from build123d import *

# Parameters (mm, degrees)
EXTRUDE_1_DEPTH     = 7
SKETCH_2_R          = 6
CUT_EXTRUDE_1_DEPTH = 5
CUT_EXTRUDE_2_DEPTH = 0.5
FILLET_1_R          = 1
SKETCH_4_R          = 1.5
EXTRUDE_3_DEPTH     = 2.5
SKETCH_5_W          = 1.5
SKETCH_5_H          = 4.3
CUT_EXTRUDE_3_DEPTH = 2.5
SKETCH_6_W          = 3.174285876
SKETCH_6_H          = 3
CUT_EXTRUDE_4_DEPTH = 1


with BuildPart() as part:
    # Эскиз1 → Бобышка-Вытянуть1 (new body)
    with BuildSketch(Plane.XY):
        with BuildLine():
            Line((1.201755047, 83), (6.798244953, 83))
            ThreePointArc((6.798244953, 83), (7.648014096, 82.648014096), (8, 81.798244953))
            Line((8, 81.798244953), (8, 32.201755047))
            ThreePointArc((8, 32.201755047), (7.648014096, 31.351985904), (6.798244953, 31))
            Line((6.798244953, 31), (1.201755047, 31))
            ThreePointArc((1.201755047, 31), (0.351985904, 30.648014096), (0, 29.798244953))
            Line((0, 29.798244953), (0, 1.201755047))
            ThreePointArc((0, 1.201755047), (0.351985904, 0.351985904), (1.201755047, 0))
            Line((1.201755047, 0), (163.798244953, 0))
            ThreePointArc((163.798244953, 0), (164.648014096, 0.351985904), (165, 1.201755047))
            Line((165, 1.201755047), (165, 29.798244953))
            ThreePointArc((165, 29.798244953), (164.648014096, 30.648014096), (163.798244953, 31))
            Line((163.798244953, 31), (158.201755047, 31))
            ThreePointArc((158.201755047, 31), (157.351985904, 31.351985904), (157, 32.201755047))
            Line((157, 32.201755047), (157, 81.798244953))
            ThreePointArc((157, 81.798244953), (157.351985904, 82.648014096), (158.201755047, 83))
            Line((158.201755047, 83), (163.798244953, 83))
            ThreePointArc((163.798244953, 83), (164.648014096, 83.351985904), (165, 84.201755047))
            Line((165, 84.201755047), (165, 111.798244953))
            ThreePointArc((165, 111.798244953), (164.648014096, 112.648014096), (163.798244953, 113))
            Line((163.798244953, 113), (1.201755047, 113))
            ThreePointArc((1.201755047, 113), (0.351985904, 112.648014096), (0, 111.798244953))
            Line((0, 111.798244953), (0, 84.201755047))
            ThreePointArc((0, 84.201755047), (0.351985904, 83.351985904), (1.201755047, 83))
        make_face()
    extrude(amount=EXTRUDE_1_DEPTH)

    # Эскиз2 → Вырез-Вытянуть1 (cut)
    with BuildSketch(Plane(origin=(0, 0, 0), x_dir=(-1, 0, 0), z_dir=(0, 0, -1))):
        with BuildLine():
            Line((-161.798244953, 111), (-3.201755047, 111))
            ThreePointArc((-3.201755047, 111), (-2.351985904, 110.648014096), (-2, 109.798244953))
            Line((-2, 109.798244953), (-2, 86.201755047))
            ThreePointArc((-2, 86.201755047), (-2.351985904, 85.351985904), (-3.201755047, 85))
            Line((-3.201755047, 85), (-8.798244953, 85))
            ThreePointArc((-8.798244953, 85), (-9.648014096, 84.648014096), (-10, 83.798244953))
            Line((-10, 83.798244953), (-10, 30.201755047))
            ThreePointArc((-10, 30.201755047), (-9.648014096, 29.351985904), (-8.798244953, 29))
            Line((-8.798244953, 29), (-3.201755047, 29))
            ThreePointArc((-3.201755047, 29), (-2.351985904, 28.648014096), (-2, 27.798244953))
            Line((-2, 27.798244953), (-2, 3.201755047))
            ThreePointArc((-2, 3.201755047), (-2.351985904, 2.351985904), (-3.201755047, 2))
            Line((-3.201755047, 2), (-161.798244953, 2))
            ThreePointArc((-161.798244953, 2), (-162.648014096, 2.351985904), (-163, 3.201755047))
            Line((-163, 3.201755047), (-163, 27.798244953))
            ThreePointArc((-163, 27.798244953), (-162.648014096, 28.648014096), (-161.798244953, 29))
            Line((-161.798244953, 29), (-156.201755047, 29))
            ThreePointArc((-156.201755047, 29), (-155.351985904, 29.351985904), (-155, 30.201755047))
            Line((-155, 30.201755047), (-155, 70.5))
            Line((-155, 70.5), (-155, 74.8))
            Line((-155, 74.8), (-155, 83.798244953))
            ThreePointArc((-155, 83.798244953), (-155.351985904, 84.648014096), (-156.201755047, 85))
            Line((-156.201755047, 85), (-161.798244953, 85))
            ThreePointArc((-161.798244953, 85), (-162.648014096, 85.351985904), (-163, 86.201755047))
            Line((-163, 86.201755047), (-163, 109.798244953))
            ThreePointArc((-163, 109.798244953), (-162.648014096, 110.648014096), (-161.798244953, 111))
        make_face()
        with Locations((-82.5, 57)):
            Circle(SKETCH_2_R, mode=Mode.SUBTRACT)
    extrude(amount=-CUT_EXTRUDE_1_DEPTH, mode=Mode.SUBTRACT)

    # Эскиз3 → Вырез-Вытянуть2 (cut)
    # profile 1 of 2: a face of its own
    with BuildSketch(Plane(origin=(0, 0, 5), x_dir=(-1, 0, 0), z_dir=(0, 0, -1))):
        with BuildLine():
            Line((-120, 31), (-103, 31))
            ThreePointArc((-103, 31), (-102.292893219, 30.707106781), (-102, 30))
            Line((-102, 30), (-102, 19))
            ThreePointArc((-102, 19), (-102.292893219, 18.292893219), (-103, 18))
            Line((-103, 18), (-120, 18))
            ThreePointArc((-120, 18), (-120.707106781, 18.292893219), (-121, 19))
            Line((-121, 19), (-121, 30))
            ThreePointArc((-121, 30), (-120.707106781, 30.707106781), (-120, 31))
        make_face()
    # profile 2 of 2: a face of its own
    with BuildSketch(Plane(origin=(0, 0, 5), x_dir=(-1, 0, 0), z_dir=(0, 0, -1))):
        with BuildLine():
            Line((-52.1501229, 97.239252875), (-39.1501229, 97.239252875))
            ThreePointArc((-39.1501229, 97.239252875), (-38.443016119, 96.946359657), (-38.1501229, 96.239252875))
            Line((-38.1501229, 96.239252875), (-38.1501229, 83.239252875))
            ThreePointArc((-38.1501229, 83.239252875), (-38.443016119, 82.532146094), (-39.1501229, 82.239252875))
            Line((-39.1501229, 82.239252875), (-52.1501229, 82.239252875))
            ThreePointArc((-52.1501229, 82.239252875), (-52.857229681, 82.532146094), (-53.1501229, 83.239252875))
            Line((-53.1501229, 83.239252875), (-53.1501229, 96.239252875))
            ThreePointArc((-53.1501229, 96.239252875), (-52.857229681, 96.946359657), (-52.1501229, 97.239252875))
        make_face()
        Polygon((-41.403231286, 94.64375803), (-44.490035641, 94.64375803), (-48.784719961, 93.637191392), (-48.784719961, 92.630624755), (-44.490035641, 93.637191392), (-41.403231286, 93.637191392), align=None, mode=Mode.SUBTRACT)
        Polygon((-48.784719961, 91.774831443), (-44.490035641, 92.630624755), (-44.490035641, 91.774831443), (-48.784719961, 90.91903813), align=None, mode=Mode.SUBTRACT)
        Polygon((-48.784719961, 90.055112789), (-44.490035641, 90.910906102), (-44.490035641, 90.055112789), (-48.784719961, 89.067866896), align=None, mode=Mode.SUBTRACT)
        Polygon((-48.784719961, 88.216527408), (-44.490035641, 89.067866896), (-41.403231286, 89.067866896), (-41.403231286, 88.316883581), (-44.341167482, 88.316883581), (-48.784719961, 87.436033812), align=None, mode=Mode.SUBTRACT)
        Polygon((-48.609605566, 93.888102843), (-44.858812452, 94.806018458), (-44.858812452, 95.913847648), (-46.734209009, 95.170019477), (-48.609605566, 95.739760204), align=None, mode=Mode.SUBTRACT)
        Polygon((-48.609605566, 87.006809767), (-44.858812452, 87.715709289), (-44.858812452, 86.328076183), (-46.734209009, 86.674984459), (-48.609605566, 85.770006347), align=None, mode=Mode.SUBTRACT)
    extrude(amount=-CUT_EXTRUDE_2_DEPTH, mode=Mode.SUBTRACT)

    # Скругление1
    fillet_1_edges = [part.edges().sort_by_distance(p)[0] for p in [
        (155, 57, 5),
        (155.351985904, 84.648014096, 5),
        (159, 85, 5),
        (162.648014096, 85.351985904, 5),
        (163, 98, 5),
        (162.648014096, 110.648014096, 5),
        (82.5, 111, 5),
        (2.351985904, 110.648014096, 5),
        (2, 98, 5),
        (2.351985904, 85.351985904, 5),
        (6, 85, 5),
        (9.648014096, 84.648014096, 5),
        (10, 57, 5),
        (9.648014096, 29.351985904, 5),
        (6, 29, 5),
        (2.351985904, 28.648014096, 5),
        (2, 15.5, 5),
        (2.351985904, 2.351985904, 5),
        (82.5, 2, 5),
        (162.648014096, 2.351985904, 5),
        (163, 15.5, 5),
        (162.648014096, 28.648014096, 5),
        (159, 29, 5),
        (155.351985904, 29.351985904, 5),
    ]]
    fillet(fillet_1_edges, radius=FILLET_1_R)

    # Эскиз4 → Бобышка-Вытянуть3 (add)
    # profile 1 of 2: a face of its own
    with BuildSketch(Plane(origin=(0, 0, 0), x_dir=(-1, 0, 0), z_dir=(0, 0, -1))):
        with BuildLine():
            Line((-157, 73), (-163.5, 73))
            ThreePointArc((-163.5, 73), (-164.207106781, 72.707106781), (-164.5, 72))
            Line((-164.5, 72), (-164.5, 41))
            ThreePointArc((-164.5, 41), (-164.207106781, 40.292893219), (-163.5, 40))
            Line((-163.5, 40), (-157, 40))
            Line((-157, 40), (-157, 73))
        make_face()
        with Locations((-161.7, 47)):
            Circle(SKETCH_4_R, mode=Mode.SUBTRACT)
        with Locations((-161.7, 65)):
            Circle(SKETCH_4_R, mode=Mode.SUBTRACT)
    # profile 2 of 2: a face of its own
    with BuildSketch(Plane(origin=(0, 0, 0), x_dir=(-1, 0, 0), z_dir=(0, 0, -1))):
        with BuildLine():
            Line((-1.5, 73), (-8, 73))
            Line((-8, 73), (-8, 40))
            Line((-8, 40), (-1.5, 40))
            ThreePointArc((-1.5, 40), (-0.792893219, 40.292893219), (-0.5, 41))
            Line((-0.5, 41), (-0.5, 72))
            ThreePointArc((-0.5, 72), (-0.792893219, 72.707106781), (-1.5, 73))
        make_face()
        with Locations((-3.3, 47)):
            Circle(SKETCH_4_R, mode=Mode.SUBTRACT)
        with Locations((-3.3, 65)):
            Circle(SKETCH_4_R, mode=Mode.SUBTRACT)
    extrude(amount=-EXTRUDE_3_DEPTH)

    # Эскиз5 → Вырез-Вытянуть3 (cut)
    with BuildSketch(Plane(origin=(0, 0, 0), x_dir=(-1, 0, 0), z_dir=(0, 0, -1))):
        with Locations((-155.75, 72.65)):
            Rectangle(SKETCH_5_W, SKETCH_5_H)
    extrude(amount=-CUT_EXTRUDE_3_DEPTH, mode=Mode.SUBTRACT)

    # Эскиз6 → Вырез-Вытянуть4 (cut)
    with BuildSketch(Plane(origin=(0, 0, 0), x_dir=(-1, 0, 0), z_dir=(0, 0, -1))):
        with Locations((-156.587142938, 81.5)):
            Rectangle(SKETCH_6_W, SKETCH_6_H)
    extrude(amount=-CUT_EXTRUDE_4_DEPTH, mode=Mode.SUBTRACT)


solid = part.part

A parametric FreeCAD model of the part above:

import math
import FreeCAD as App
import Part
import Sketcher

V = App.Vector


def edges_at(feature, points):
    """Names of the edges that pass closest to the given points."""
    edges = feature.Shape.Edges
    near = lambda p: min(range(len(edges)), key=lambda i: edges[i].distToShape(Part.Vertex(*p))[0])
    return sorted({f"Edge{near(p) + 1}" for p in points})


def add_polygon(sketch, points):
    """Adds a closed chain of lines whose ends are joined by coincident constraints."""
    first, n = sketch.GeometryCount, len(points)
    for a, b in zip(points, points[1:] + points[:1]):
        sketch.addGeometry(Part.LineSegment(App.Vector(*a, 0), App.Vector(*b, 0)), False)
    for i in range(n):
        sketch.addConstraint(Sketcher.Constraint("Coincident", first + i, 2, first + (i + 1) % n, 1))

doc = App.newDocument("Part")
body = doc.addObject("PartDesign::Body", "Body")

sketch1 = body.newObject("Sketcher::SketchObject", "Sketch")
sketch1.AttachmentSupport = (doc.getObject("XY_Plane"), [""])
sketch1.MapMode = "FlatFace"
sketch1.addGeometry([
    Part.LineSegment(V(1.2, 83, 0), V(6.8, 83, 0)),
    Part.ArcOfCircle(Part.Circle(V(6.8, 81.8, 0), V(0, 0, 1), 1.2), math.radians(0), math.radians(90)),
    Part.LineSegment(V(8, 81.8, 0), V(8, 32.2, 0)),
    Part.ArcOfCircle(Part.Circle(V(6.8, 32.2, 0), V(0, 0, 1), 1.2), math.radians(-90), math.radians(0)),
    Part.LineSegment(V(6.8, 31, 0), V(1.2, 31, 0)),
    Part.ArcOfCircle(Part.Circle(V(1.2, 29.8, 0), V(0, 0, 1), 1.2), math.radians(90), math.radians(180)),
    Part.LineSegment(V(0, 29.8, 0), V(0, 1.2, 0)),
    Part.ArcOfCircle(Part.Circle(V(1.2, 1.2, 0), V(0, 0, 1), 1.2), math.radians(180), math.radians(270)),
    Part.LineSegment(V(1.2, 0, 0), V(163.8, 0, 0)),
    Part.ArcOfCircle(Part.Circle(V(163.8, 1.2, 0), V(0, 0, 1), 1.2), math.radians(-90), math.radians(0)),
    Part.LineSegment(V(165, 1.2, 0), V(165, 29.8, 0)),
    Part.ArcOfCircle(Part.Circle(V(163.8, 29.8, 0), V(0, 0, 1), 1.2), math.radians(0), math.radians(90)),
    Part.LineSegment(V(163.8, 31, 0), V(158.2, 31, 0)),
    Part.ArcOfCircle(Part.Circle(V(158.2, 32.2, 0), V(0, 0, 1), 1.2), math.radians(180), math.radians(270)),
    Part.LineSegment(V(157, 32.2, 0), V(157, 81.8, 0)),
    Part.ArcOfCircle(Part.Circle(V(158.2, 81.8, 0), V(0, 0, 1), 1.2), math.radians(90), math.radians(180)),
    Part.LineSegment(V(158.2, 83, 0), V(163.8, 83, 0)),
    Part.ArcOfCircle(Part.Circle(V(163.8, 84.2, 0), V(0, 0, 1), 1.2), math.radians(-90), math.radians(0)),
    Part.LineSegment(V(165, 84.2, 0), V(165, 111.8, 0)),
    Part.ArcOfCircle(Part.Circle(V(163.8, 111.8, 0), V(0, 0, 1), 1.2), math.radians(0), math.radians(90)),
    Part.LineSegment(V(163.8, 113, 0), V(1.2, 113, 0)),
    Part.ArcOfCircle(Part.Circle(V(1.2, 111.8, 0), V(0, 0, 1), 1.2), math.radians(90), math.radians(180)),
    Part.LineSegment(V(0, 111.8, 0), V(0, 84.2, 0)),
    Part.ArcOfCircle(Part.Circle(V(1.2, 84.2, 0), V(0, 0, 1), 1.2), math.radians(180), math.radians(270)),
], False)
sketch1.addConstraint([
    Sketcher.Constraint("Tangent", 0, 2, 1, 2),
    Sketcher.Constraint("Tangent", 1, 1, 2, 1),
    Sketcher.Constraint("Tangent", 2, 2, 3, 2),
    Sketcher.Constraint("Tangent", 3, 1, 4, 1),
    Sketcher.Constraint("Tangent", 4, 2, 5, 1),
    Sketcher.Constraint("Tangent", 5, 2, 6, 1),
    Sketcher.Constraint("Tangent", 6, 2, 7, 1),
    Sketcher.Constraint("Tangent", 7, 2, 8, 1),
    Sketcher.Constraint("Tangent", 8, 2, 9, 1),
    Sketcher.Constraint("Tangent", 9, 2, 10, 1),
    Sketcher.Constraint("Tangent", 10, 2, 11, 1),
    Sketcher.Constraint("Tangent", 11, 2, 12, 1),
    Sketcher.Constraint("Tangent", 12, 2, 13, 2),
    Sketcher.Constraint("Tangent", 13, 1, 14, 1),
    Sketcher.Constraint("Tangent", 14, 2, 15, 2),
    Sketcher.Constraint("Tangent", 15, 1, 16, 1),
    Sketcher.Constraint("Tangent", 16, 2, 17, 1),
    Sketcher.Constraint("Tangent", 17, 2, 18, 1),
    Sketcher.Constraint("Tangent", 18, 2, 19, 1),
    Sketcher.Constraint("Tangent", 19, 2, 20, 1),
    Sketcher.Constraint("Tangent", 20, 2, 21, 1),
    Sketcher.Constraint("Tangent", 21, 2, 22, 1),
    Sketcher.Constraint("Tangent", 22, 2, 23, 1),
    Sketcher.Constraint("Tangent", 23, 2, 0, 1),
    Sketcher.Constraint("Horizontal", 0),
    Sketcher.Constraint("Vertical", 2),
    Sketcher.Constraint("Horizontal", 4),
    Sketcher.Constraint("Vertical", 6),
    Sketcher.Constraint("Horizontal", 8),
    Sketcher.Constraint("Vertical", 10),
    Sketcher.Constraint("Horizontal", 12),
    Sketcher.Constraint("Vertical", 14),
    Sketcher.Constraint("Horizontal", 16),
    Sketcher.Constraint("Vertical", 18),
    Sketcher.Constraint("Horizontal", 20),
    Sketcher.Constraint("Vertical", 22),
    Sketcher.Constraint("Equal", 1, 3),
    Sketcher.Constraint("Equal", 3, 5),
    Sketcher.Constraint("Equal", 5, 7),
    Sketcher.Constraint("Equal", 7, 9),
    Sketcher.Constraint("Equal", 9, 11),
    Sketcher.Constraint("Equal", 11, 13),
    Sketcher.Constraint("Equal", 13, 15),
    Sketcher.Constraint("Equal", 15, 17),
    Sketcher.Constraint("Equal", 17, 19),
    Sketcher.Constraint("Equal", 19, 21),
    Sketcher.Constraint("Equal", 21, 23),
    Sketcher.Constraint("PointOnObject", 5, 2, -2),
    Sketcher.Constraint("PointOnObject", 7, 2, -1),
    Sketcher.Constraint("PointOnObject", 21, 2, -2),
    Sketcher.Constraint("Horizontal", 5, 3, 11, 3),
    Sketcher.Constraint("Horizontal", 1, 3, 15, 3),
    Sketcher.Constraint("Vertical", 11, 3, 17, 3),
    Sketcher.Constraint("Equal", 4, 12),
    Sketcher.Constraint("DistanceY", -1, 1, 0, 2, 83.0),
    Sketcher.Constraint("DistanceX", -1, 1, 1, 1, 8.0),
    Sketcher.Constraint("DistanceY", -1, 1, 3, 1, 31.0),
    Sketcher.Constraint("DistanceX", -1, 1, 9, 2, 165.0),
    Sketcher.Constraint("DistanceY", -1, 1, 19, 2, 113.0),
    Sketcher.Constraint("Radius", 1, 1.201755),
])
pad1 = body.newObject("PartDesign::Pad", "Pad")
pad1.Profile = sketch1
pad1.Length = 7

sketch2 = body.newObject("Sketcher::SketchObject", "Sketch001")
sketch2.AttachmentSupport = (doc.getObject("XY_Plane"), [""])
sketch2.MapMode = "FlatFace"
sketch2.addGeometry([
    Part.LineSegment(V(3.2, 111, 0), V(161.8, 111, 0)),
    Part.ArcOfCircle(Part.Circle(V(161.8, 109.8, 0), V(0, 0, 1), 1.2), math.radians(0), math.radians(90)),
    Part.LineSegment(V(163, 109.8, 0), V(163, 86.2, 0)),
    Part.ArcOfCircle(Part.Circle(V(161.8, 86.2, 0), V(0, 0, 1), 1.2), math.radians(-90), math.radians(0)),
    Part.LineSegment(V(161.8, 85, 0), V(156.2, 85, 0)),
    Part.ArcOfCircle(Part.Circle(V(156.2, 83.8, 0), V(0, 0, 1), 1.2), math.radians(90), math.radians(180)),
    Part.LineSegment(V(155, 83.8, 0), V(155, 30.2, 0)),
    Part.ArcOfCircle(Part.Circle(V(156.2, 30.2, 0), V(0, 0, 1), 1.2), math.radians(180), math.radians(270)),
    Part.LineSegment(V(156.2, 29, 0), V(161.8, 29, 0)),
    Part.ArcOfCircle(Part.Circle(V(161.8, 27.8, 0), V(0, 0, 1), 1.2), math.radians(0), math.radians(90)),
    Part.LineSegment(V(163, 27.8, 0), V(163, 3.2, 0)),
    Part.ArcOfCircle(Part.Circle(V(161.8, 3.2, 0), V(0, 0, 1), 1.2), math.radians(-90), math.radians(0)),
    Part.LineSegment(V(161.8, 2, 0), V(3.2, 2, 0)),
    Part.ArcOfCircle(Part.Circle(V(3.2, 3.2, 0), V(0, 0, 1), 1.2), math.radians(180), math.radians(270)),
    Part.LineSegment(V(2, 3.2, 0), V(2, 27.8, 0)),
    Part.ArcOfCircle(Part.Circle(V(3.2, 27.8, 0), V(0, 0, 1), 1.2), math.radians(90), math.radians(180)),
    Part.LineSegment(V(3.2, 29, 0), V(8.8, 29, 0)),
    Part.ArcOfCircle(Part.Circle(V(8.8, 30.2, 0), V(0, 0, 1), 1.2), math.radians(-90), math.radians(0)),
    Part.LineSegment(V(10, 30.2, 0), V(10, 83.8, 0)),
    Part.ArcOfCircle(Part.Circle(V(8.8, 83.8, 0), V(0, 0, 1), 1.2), math.radians(0), math.radians(90)),
    Part.LineSegment(V(8.8, 85, 0), V(3.2, 85, 0)),
    Part.ArcOfCircle(Part.Circle(V(3.2, 86.2, 0), V(0, 0, 1), 1.2), math.radians(180), math.radians(270)),
    Part.LineSegment(V(2, 86.2, 0), V(2, 109.8, 0)),
    Part.ArcOfCircle(Part.Circle(V(3.2, 109.8, 0), V(0, 0, 1), 1.2), math.radians(90), math.radians(180)),
    Part.Circle(V(82.5, 57, 0), V(0, 0, 1), 6),
], False)
sketch2.addConstraint([
    Sketcher.Constraint("Tangent", 0, 2, 1, 2),
    Sketcher.Constraint("Tangent", 1, 1, 2, 1),
    Sketcher.Constraint("Tangent", 2, 2, 3, 2),
    Sketcher.Constraint("Tangent", 3, 1, 4, 1),
    Sketcher.Constraint("Tangent", 4, 2, 5, 1),
    Sketcher.Constraint("Tangent", 5, 2, 6, 1),
    Sketcher.Constraint("Tangent", 6, 2, 7, 1),
    Sketcher.Constraint("Tangent", 7, 2, 8, 1),
    Sketcher.Constraint("Tangent", 8, 2, 9, 2),
    Sketcher.Constraint("Tangent", 9, 1, 10, 1),
    Sketcher.Constraint("Tangent", 10, 2, 11, 2),
    Sketcher.Constraint("Tangent", 11, 1, 12, 1),
    Sketcher.Constraint("Tangent", 12, 2, 13, 2),
    Sketcher.Constraint("Tangent", 13, 1, 14, 1),
    Sketcher.Constraint("Tangent", 14, 2, 15, 2),
    Sketcher.Constraint("Tangent", 15, 1, 16, 1),
    Sketcher.Constraint("Tangent", 16, 2, 17, 1),
    Sketcher.Constraint("Tangent", 17, 2, 18, 1),
    Sketcher.Constraint("Tangent", 18, 2, 19, 1),
    Sketcher.Constraint("Tangent", 19, 2, 20, 1),
    Sketcher.Constraint("Tangent", 20, 2, 21, 2),
    Sketcher.Constraint("Tangent", 21, 1, 22, 1),
    Sketcher.Constraint("Tangent", 22, 2, 23, 2),
    Sketcher.Constraint("Tangent", 23, 1, 0, 1),
    Sketcher.Constraint("Horizontal", 0),
    Sketcher.Constraint("Vertical", 2),
    Sketcher.Constraint("Horizontal", 4),
    Sketcher.Constraint("Vertical", 6),
    Sketcher.Constraint("Horizontal", 8),
    Sketcher.Constraint("Vertical", 10),
    Sketcher.Constraint("Horizontal", 12),
    Sketcher.Constraint("Vertical", 14),
    Sketcher.Constraint("Horizontal", 16),
    Sketcher.Constraint("Vertical", 18),
    Sketcher.Constraint("Horizontal", 20),
    Sketcher.Constraint("Vertical", 22),
    Sketcher.Constraint("Equal", 1, 3),
    Sketcher.Constraint("Equal", 3, 5),
    Sketcher.Constraint("Equal", 5, 7),
    Sketcher.Constraint("Equal", 7, 9),
    Sketcher.Constraint("Equal", 9, 11),
    Sketcher.Constraint("Equal", 11, 13),
    Sketcher.Constraint("Equal", 13, 15),
    Sketcher.Constraint("Equal", 15, 17),
    Sketcher.Constraint("Equal", 17, 19),
    Sketcher.Constraint("Equal", 19, 21),
    Sketcher.Constraint("Equal", 21, 23),
    Sketcher.Constraint("Horizontal", 9, 3, 15, 3),
    Sketcher.Constraint("Horizontal", 5, 3, 19, 3),
    Sketcher.Constraint("Vertical", 3, 3, 9, 3),
    Sketcher.Constraint("Vertical", 15, 3, 21, 3),
    Sketcher.Constraint("Equal", 8, 16),
    Sketcher.Constraint("Diameter", 24, 12.0),
    Sketcher.Constraint("DistanceY", -1, 1, 24, 3, 57.0),
    Sketcher.Constraint("DistanceY", -1, 1, 0, 2, 111.0),
    Sketcher.Constraint("DistanceX", -1, 1, 1, 1, 163.0),
    Sketcher.Constraint("DistanceY", -1, 1, 3, 1, 85.0),
    Sketcher.Constraint("DistanceX", -1, 1, 5, 2, 155.0),
    Sketcher.Constraint("DistanceY", -1, 1, 7, 2, 29.0),
    Sketcher.Constraint("DistanceY", -1, 1, 11, 1, 2.0),
    Sketcher.Constraint("DistanceX", -1, 1, 13, 1, 2.0),
    Sketcher.Constraint("DistanceX", -1, 1, 24, 3, 82.5),
    Sketcher.Constraint("Radius", 1, 1.201755),
])
pocket1 = body.newObject("PartDesign::Pocket", "Pocket")
pocket1.Profile = sketch2
pocket1.Length = 5
pocket1.Reversed = True

sketch3 = body.newObject("Sketcher::SketchObject", "Sketch002")
sketch3.AttachmentSupport = (doc.getObject("XY_Plane"), [""])
sketch3.MapMode = "FlatFace"
sketch3.AttachmentOffset = App.Placement(V(0, 0, 5), App.Rotation())
sketch3.addGeometry(Part.LineSegment(V(103, 31, 0), V(120, 31, 0)), False)
sketch3.addGeometry(Part.ArcOfCircle(Part.Circle(V(120, 30, 0), V(0, 0, 1), 1), math.radians(0), math.radians(90)), False)
sketch3.addGeometry(Part.LineSegment(V(121, 30, 0), V(121, 19, 0)), False)
sketch3.addGeometry(Part.ArcOfCircle(Part.Circle(V(120, 19, 0), V(0, 0, 1), 1), math.radians(-90), math.radians(0)), False)
sketch3.addGeometry(Part.LineSegment(V(120, 18, 0), V(103, 18, 0)), False)
sketch3.addGeometry(Part.ArcOfCircle(Part.Circle(V(103, 19, 0), V(0, 0, 1), 1), math.radians(-180), math.radians(-90)), False)
sketch3.addGeometry(Part.LineSegment(V(102, 19, 0), V(102, 30, 0)), False)
sketch3.addGeometry(Part.ArcOfCircle(Part.Circle(V(103, 30, 0), V(0, 0, 1), 1), math.radians(90), math.radians(180)), False)
sketch3.addGeometry(Part.LineSegment(V(39.150123, 97.239253, 0), V(52.150123, 97.239253, 0)), False)
sketch3.addGeometry(Part.ArcOfCircle(Part.Circle(V(52.150123, 96.239253, 0), V(0, 0, 1), 1), math.radians(0), math.radians(90)), False)
sketch3.addGeometry(Part.LineSegment(V(53.150123, 96.239253, 0), V(53.150123, 83.239253, 0)), False)
sketch3.addGeometry(Part.ArcOfCircle(Part.Circle(V(52.150123, 83.239253, 0), V(0, 0, 1), 1), math.radians(-90), math.radians(0)), False)
sketch3.addGeometry(Part.LineSegment(V(52.150123, 82.239253, 0), V(39.150123, 82.239253, 0)), False)
sketch3.addGeometry(Part.ArcOfCircle(Part.Circle(V(39.150123, 83.239253, 0), V(0, 0, 1), 1), math.radians(-180), math.radians(-90)), False)
sketch3.addGeometry(Part.LineSegment(V(38.150123, 83.239253, 0), V(38.150123, 96.239253, 0)), False)
sketch3.addGeometry(Part.ArcOfCircle(Part.Circle(V(39.150123, 96.239253, 0), V(0, 0, 1), 1), math.radians(90), math.radians(180)), False)
add_polygon(sketch3, [(48.78472, 88.216527), (44.490036, 89.067867), (41.403231, 89.067867), (41.403231, 88.316884), (44.341167, 88.316884), (48.78472, 87.436034)])
add_polygon(sketch3, [(48.609606, 87.00681), (44.858812, 87.715709), (44.858812, 86.328076), (46.734209, 86.674984), (48.609606, 85.770006)])
add_polygon(sketch3, [(48.78472, 90.055113), (44.490036, 90.910906), (44.490036, 90.055113), (48.78472, 89.067867)])
add_polygon(sketch3, [(41.403231, 94.643758), (41.403231, 93.637191), (44.490036, 93.637191), (48.78472, 92.630625), (48.78472, 93.637191), (44.490036, 94.643758)])
add_polygon(sketch3, [(48.78472, 91.774831), (44.490036, 92.630625), (44.490036, 91.774831), (48.78472, 90.919038)])
add_polygon(sketch3, [(48.609606, 93.888103), (48.609606, 95.73976), (46.734209, 95.170019), (44.858812, 95.913848), (44.858812, 94.806018)])
sketch3.addConstraint([
    Sketcher.Constraint("Coincident", 0, 2, 1, 2),
    Sketcher.Constraint("Coincident", 1, 1, 2, 1),
    Sketcher.Constraint("Coincident", 2, 2, 3, 2),
    Sketcher.Constraint("Coincident", 3, 1, 4, 1),
    Sketcher.Constraint("Coincident", 4, 2, 5, 2),
    Sketcher.Constraint("Coincident", 5, 1, 6, 1),
    Sketcher.Constraint("Coincident", 6, 2, 7, 2),
    Sketcher.Constraint("Coincident", 7, 1, 0, 1),
    Sketcher.Constraint("Coincident", 8, 2, 9, 2),
    Sketcher.Constraint("Coincident", 9, 1, 10, 1),
    Sketcher.Constraint("Coincident", 10, 2, 11, 2),
    Sketcher.Constraint("Coincident", 11, 1, 12, 1),
    Sketcher.Constraint("Coincident", 12, 2, 13, 2),
    Sketcher.Constraint("Coincident", 13, 1, 14, 1),
    Sketcher.Constraint("Coincident", 14, 2, 15, 2),
    Sketcher.Constraint("Coincident", 15, 1, 8, 1),
    Sketcher.Constraint("Horizontal", 0),
    Sketcher.Constraint("Vertical", 2),
    Sketcher.Constraint("Horizontal", 4),
    Sketcher.Constraint("Vertical", 6),
    Sketcher.Constraint("Horizontal", 8),
    Sketcher.Constraint("Vertical", 10),
    Sketcher.Constraint("Horizontal", 12),
    Sketcher.Constraint("Vertical", 14),
    Sketcher.Constraint("Horizontal", 17),
    Sketcher.Constraint("Vertical", 18),
    Sketcher.Constraint("Horizontal", 19),
    Sketcher.Constraint("Vertical", 21),
    Sketcher.Constraint("Vertical", 23),
    Sketcher.Constraint("Vertical", 26),
    Sketcher.Constraint("Vertical", 28),
    Sketcher.Constraint("Vertical", 30),
    Sketcher.Constraint("Vertical", 31),
    Sketcher.Constraint("Horizontal", 32),
    Sketcher.Constraint("Vertical", 34),
    Sketcher.Constraint("Horizontal", 36),
    Sketcher.Constraint("Vertical", 38),
    Sketcher.Constraint("Vertical", 40),
    Sketcher.Constraint("Vertical", 41),
    Sketcher.Constraint("Vertical", 44),
    Sketcher.Constraint("Radius", 1, 1.0),
    Sketcher.Constraint("Radius", 3, 1.0),
    Sketcher.Constraint("Radius", 5, 1.0),
    Sketcher.Constraint("Radius", 7, 1.0),
    Sketcher.Constraint("Radius", 9, 1.0),
    Sketcher.Constraint("Radius", 11, 1.0),
    Sketcher.Constraint("Radius", 13, 1.0),
    Sketcher.Constraint("Radius", 15, 1.0),
    Sketcher.Constraint("DistanceX", 0, 1, 0, 2, 17.0),
    Sketcher.Constraint("DistanceX", 4, 2, 4, 1, 17.0),
    Sketcher.Constraint("DistanceX", 8, 1, 8, 2, 13.0),
    Sketcher.Constraint("DistanceX", 12, 2, 12, 1, 13.0),
    Sketcher.Constraint("DistanceY", 2, 2, 2, 1, 11.0),
    Sketcher.Constraint("DistanceY", 6, 1, 6, 2, 11.0),
    Sketcher.Constraint("DistanceY", 10, 2, 10, 1, 13.0),
    Sketcher.Constraint("DistanceY", 14, 1, 14, 2, 13.0),
    Sketcher.Constraint("DistanceX", -1, 1, 1, 3, 120.0),
    Sketcher.Constraint("DistanceY", -1, 1, 1, 3, 30.0),
    Sketcher.Constraint("DistanceY", -1, 1, 3, 3, 19.0),
    Sketcher.Constraint("DistanceX", -1, 1, 5, 3, 103.0),
    Sketcher.Constraint("DistanceX", -1, 1, 0, 2, 120.0),
    Sketcher.Constraint("DistanceY", -1, 1, 1, 1, 30.0),
    Sketcher.Constraint("DistanceX", -1, 1, 3, 1, 120.0),
    Sketcher.Constraint("DistanceY", -1, 1, 5, 1, 19.0),
    Sketcher.Constraint("DistanceY", 11, 3, 9, 3, 13.0),
    Sketcher.Constraint("DistanceX", 13, 3, 11, 3, 13.0),
    Sketcher.Constraint("DistanceX", 15, 3, 8, 2, 13.0),
    Sketcher.Constraint("DistanceY", 9, 1, 8, 2, 1.0),
    Sketcher.Constraint("DistanceX", 11, 1, 10, 2, 1.0),
    Sketcher.Constraint("DistanceY", 12, 2, 13, 1, 1.0),
    Sketcher.Constraint("DistanceY", 44, 2, 42, 2, 0.364001),
    Sketcher.Constraint("DistanceY", 44, 2, 44, 1, 1.107829),
    Sketcher.Constraint("DistanceY", 24, 2, 19, 2, 1.641899),
    Sketcher.Constraint("Distance", 24, 1.907212),
    Sketcher.Constraint("Distance", 25, 2.08233),
    Sketcher.Constraint("Distance", 27, 4.37912),
    Sketcher.Constraint("Distance", 37, 4.37912),
    Sketcher.Constraint("Distance", 39, 4.37912),
    Sketcher.Constraint("Distance", 42, 1.96003),
    Sketcher.Constraint("Distance", 43, 2.017521),
    Sketcher.Constraint("Distance", 45, 3.861479),
    Sketcher.Constraint("DistanceX", 17, 2, 17, 1, 3.086804),
    Sketcher.Constraint("DistanceX", 19, 1, 19, 2, 2.937936),
    Sketcher.Constraint("DistanceX", 32, 1, 32, 2, 3.086804),
    Sketcher.Constraint("DistanceX", 36, 2, 36, 1, 3.086804),
    Sketcher.Constraint("DistanceY", 18, 2, 18, 1, 0.750983),
    Sketcher.Constraint("DistanceY", 21, 1, 21, 2, 0.780494),
    Sketcher.Constraint("DistanceY", 23, 2, 23, 1, 1.387633),
    Sketcher.Constraint("DistanceY", 26, 1, 26, 2, 1.236803),
    Sketcher.Constraint("DistanceY", 28, 2, 28, 1, 0.855793),
    Sketcher.Constraint("DistanceY", 30, 1, 30, 2, 0.987246),
    Sketcher.Constraint("DistanceY", 31, 2, 31, 1, 1.006567),
    Sketcher.Constraint("DistanceY", 34, 1, 34, 2, 1.006567),
    Sketcher.Constraint("DistanceY", 38, 2, 38, 1, 0.855793),
    Sketcher.Constraint("DistanceY", 41, 1, 41, 2, 1.851657),
    Sketcher.Constraint("DistanceX", -1, 1, 17, 2, 41.403231),
    Sketcher.Constraint("DistanceX", -1, 1, 20, 2, 48.78472),
    Sketcher.Constraint("DistanceY", -1, 1, 22, 2, 87.715709),
    Sketcher.Constraint("DistanceX", -1, 1, 24, 2, 46.734209),
    Sketcher.Constraint("DistanceY", -1, 1, 26, 2, 87.00681),
    Sketcher.Constraint("DistanceX", -1, 1, 29, 2, 48.78472),
    Sketcher.Constraint("DistanceX", -1, 1, 31, 2, 41.403231),
    Sketcher.Constraint("DistanceY", -1, 1, 31, 2, 93.637191),
    Sketcher.Constraint("DistanceX", -1, 1, 33, 2, 48.78472),
    Sketcher.Constraint("DistanceY", -1, 1, 34, 2, 93.637191),
    Sketcher.Constraint("DistanceY", -1, 1, 38, 2, 91.774831),
    Sketcher.Constraint("DistanceX", -1, 1, 39, 2, 48.78472),
    Sketcher.Constraint("DistanceY", -1, 1, 39, 2, 90.919038),
    Sketcher.Constraint("DistanceY", -1, 1, 41, 2, 95.73976),
    Sketcher.Constraint("DistanceX", -1, 1, 42, 2, 46.734209),
    Sketcher.Constraint("DistanceX", 13, 3, 17, 2, 2.253108),
    Sketcher.Constraint("DistanceY", 13, 3, 18, 2, 5.077631),
    Sketcher.Constraint("DistanceY", 20, 2, 19, 2, 0.88085),
    Sketcher.Constraint("DistanceX", 18, 2, 22, 2, 3.455581),
    Sketcher.Constraint("DistanceY", 16, 2, 27, 2, 1.843039),
    Sketcher.Constraint("DistanceX", 19, 2, 27, 2, 0.148868),
])
pocket2 = body.newObject("PartDesign::Pocket", "Pocket001")
pocket2.Profile = sketch3
pocket2.Length = 0.5
pocket2.Reversed = True
doc.recompute()

fillet = body.newObject("PartDesign::Fillet", "Fillet")
fillet.Base = (pocket2, edges_at(pocket2, [
    (155, 57, 5),
    (155.352, 84.648, 5),
    (159, 85, 5),
    (162.648, 85.352, 5),
    (163, 98, 5),
    (162.648, 110.648, 5),
    (82.5, 111, 5),
    (2.352, 110.648, 5),
    (2, 98, 5),
    (2.352, 85.352, 5),
    (6, 85, 5),
    (9.648, 84.648, 5),
    (10, 57, 5),
    (9.648, 29.352, 5),
    (6, 29, 5),
    (2.352, 28.648, 5),
    (2, 15.5, 5),
    (2.352, 2.352, 5),
    (82.5, 2, 5),
    (162.648, 2.352, 5),
    (163, 15.5, 5),
    (162.648, 28.648, 5),
    (159, 29, 5),
    (155.352, 29.352, 5),
]))
fillet.Radius = 1

sketch4 = body.newObject("Sketcher::SketchObject", "Sketch003")
sketch4.AttachmentSupport = (doc.getObject("XY_Plane"), [""])
sketch4.MapMode = "FlatFace"
sketch4.addGeometry([
    Part.LineSegment(V(157, 73, 0), V(163.5, 73, 0)),
    Part.ArcOfCircle(Part.Circle(V(163.5, 72, 0), V(0, 0, 1), 1), math.radians(0), math.radians(90)),
    Part.LineSegment(V(164.5, 72, 0), V(164.5, 41, 0)),
    Part.ArcOfCircle(Part.Circle(V(163.5, 41, 0), V(0, 0, 1), 1), math.radians(-90), math.radians(0)),
    Part.LineSegment(V(163.5, 40, 0), V(157, 40, 0)),
    Part.LineSegment(V(157, 40, 0), V(157, 73, 0)),
    Part.Circle(V(161.7, 47, 0), V(0, 0, 1), 1.5),
    Part.Circle(V(161.7, 65, 0), V(0, 0, 1), 1.5),
    Part.LineSegment(V(1.5, 73, 0), V(8, 73, 0)),
    Part.LineSegment(V(8, 73, 0), V(8, 40, 0)),
    Part.LineSegment(V(8, 40, 0), V(1.5, 40, 0)),
    Part.ArcOfCircle(Part.Circle(V(1.5, 41, 0), V(0, 0, 1), 1), math.radians(-180), math.radians(-90)),
    Part.LineSegment(V(0.5, 41, 0), V(0.5, 72, 0)),
    Part.ArcOfCircle(Part.Circle(V(1.5, 72, 0), V(0, 0, 1), 1), math.radians(90), math.radians(180)),
    Part.Circle(V(3.3, 47, 0), V(0, 0, 1), 1.5),
    Part.Circle(V(3.3, 65, 0), V(0, 0, 1), 1.5),
], False)
sketch4.addConstraint([
    Sketcher.Constraint("Tangent", 0, 2, 1, 2),
    Sketcher.Constraint("Tangent", 1, 1, 2, 1),
    Sketcher.Constraint("Tangent", 2, 2, 3, 2),
    Sketcher.Constraint("Tangent", 3, 1, 4, 1),
    Sketcher.Constraint("Coincident", 4, 2, 5, 1),
    Sketcher.Constraint("Coincident", 5, 2, 0, 1),
    Sketcher.Constraint("Coincident", 8, 2, 9, 1),
    Sketcher.Constraint("Coincident", 9, 2, 10, 1),
    Sketcher.Constraint("Tangent", 10, 2, 11, 2),
    Sketcher.Constraint("Tangent", 11, 1, 12, 1),
    Sketcher.Constraint("Tangent", 12, 2, 13, 2),
    Sketcher.Constraint("Tangent", 13, 1, 8, 1),
    Sketcher.Constraint("Horizontal", 0),
    Sketcher.Constraint("Vertical", 2),
    Sketcher.Constraint("Horizontal", 4),
    Sketcher.Constraint("Vertical", 5),
    Sketcher.Constraint("Horizontal", 8),
    Sketcher.Constraint("Vertical", 9),
    Sketcher.Constraint("Horizontal", 10),
    Sketcher.Constraint("Vertical", 12),
    Sketcher.Constraint("Equal", 1, 3),
    Sketcher.Constraint("Equal", 6, 7),
    Sketcher.Constraint("Equal", 3, 11),
    Sketcher.Constraint("Equal", 11, 13),
    Sketcher.Constraint("Equal", 7, 14),
    Sketcher.Constraint("Equal", 14, 15),
    Sketcher.Constraint("Horizontal", 3, 3, 11, 3),
    Sketcher.Constraint("Horizontal", 1, 3, 13, 3),
    Sketcher.Constraint("Horizontal", 6, 3, 14, 3),
    Sketcher.Constraint("Horizontal", 7, 3, 15, 3),
    Sketcher.Constraint("Vertical", 6, 3, 7, 3),
    Sketcher.Constraint("Vertical", 14, 3, 15, 3),
    Sketcher.Constraint("Equal", 4, 8),
    Sketcher.Constraint("Diameter", 6, 3.0),
    Sketcher.Constraint("Radius", 1, 1.0),
    Sketcher.Constraint("DistanceY", 2, 2, 2, 1, 31.0),
    Sketcher.Constraint("DistanceX", 0, 1, 0, 2, 6.5),
    Sketcher.Constraint("DistanceY", -1, 1, 1, 3, 72.0),
    Sketcher.Constraint("DistanceY", -1, 1, 6, 3, 47.0),
    Sketcher.Constraint("DistanceY", -1, 1, 7, 3, 65.0),
    Sketcher.Constraint("DistanceX", -1, 1, 4, 2, 157.0),
    Sketcher.Constraint("DistanceX", -1, 1, 8, 2, 8.0),
    Sketcher.Constraint("DistanceX", -1, 1, 6, 3, 161.7),
    Sketcher.Constraint("DistanceX", -1, 1, 14, 3, 3.3),
])
pad2 = body.newObject("PartDesign::Pad", "Pad001")
pad2.Profile = sketch4
pad2.Length = 2.5

sketch5 = body.newObject("Sketcher::SketchObject", "Sketch004")
sketch5.AttachmentSupport = (doc.getObject("XY_Plane"), [""])
sketch5.MapMode = "FlatFace"
add_polygon(sketch5, [(156.5, 74.8), (156.5, 70.5), (155, 70.5), (155, 74.8)])
sketch5.addConstraint([
    Sketcher.Constraint("Vertical", 0),
    Sketcher.Constraint("Horizontal", 1),
    Sketcher.Constraint("Vertical", 2),
    Sketcher.Constraint("Horizontal", 3),
    Sketcher.Constraint("DistanceX", 1, 2, 1, 1, 1.5),
    Sketcher.Constraint("DistanceY", 0, 2, 0, 1, 4.3),
    Sketcher.Constraint("DistanceX", -1, 1, 1, 2, 155.0),
    Sketcher.Constraint("DistanceY", -1, 1, 0, 2, 70.5),
])
pocket3 = body.newObject("PartDesign::Pocket", "Pocket002")
pocket3.Profile = sketch5
pocket3.Length = 2.5
pocket3.Reversed = True

sketch6 = body.newObject("Sketcher::SketchObject", "Sketch005")
sketch6.AttachmentSupport = (doc.getObject("XY_Plane"), [""])
sketch6.MapMode = "FlatFace"
add_polygon(sketch6, [(158.2, 83), (158.2, 80), (155, 80), (155, 83)])
sketch6.addConstraint([
    Sketcher.Constraint("Vertical", 0),
    Sketcher.Constraint("Horizontal", 1),
    Sketcher.Constraint("Vertical", 2),
    Sketcher.Constraint("Horizontal", 3),
    Sketcher.Constraint("DistanceY", 0, 2, 0, 1, 3.0),
    Sketcher.Constraint("DistanceY", -1, 1, 0, 2, 80.0),
    Sketcher.Constraint("DistanceX", -1, 1, 1, 2, 155.0),
    Sketcher.Constraint("DistanceX", 1, 2, 1, 1, 3.174286),
])
pocket4 = body.newObject("PartDesign::Pocket", "Pocket003")
pocket4.Profile = sketch6
pocket4.Length = 1
pocket4.Reversed = True

doc.recompute()
